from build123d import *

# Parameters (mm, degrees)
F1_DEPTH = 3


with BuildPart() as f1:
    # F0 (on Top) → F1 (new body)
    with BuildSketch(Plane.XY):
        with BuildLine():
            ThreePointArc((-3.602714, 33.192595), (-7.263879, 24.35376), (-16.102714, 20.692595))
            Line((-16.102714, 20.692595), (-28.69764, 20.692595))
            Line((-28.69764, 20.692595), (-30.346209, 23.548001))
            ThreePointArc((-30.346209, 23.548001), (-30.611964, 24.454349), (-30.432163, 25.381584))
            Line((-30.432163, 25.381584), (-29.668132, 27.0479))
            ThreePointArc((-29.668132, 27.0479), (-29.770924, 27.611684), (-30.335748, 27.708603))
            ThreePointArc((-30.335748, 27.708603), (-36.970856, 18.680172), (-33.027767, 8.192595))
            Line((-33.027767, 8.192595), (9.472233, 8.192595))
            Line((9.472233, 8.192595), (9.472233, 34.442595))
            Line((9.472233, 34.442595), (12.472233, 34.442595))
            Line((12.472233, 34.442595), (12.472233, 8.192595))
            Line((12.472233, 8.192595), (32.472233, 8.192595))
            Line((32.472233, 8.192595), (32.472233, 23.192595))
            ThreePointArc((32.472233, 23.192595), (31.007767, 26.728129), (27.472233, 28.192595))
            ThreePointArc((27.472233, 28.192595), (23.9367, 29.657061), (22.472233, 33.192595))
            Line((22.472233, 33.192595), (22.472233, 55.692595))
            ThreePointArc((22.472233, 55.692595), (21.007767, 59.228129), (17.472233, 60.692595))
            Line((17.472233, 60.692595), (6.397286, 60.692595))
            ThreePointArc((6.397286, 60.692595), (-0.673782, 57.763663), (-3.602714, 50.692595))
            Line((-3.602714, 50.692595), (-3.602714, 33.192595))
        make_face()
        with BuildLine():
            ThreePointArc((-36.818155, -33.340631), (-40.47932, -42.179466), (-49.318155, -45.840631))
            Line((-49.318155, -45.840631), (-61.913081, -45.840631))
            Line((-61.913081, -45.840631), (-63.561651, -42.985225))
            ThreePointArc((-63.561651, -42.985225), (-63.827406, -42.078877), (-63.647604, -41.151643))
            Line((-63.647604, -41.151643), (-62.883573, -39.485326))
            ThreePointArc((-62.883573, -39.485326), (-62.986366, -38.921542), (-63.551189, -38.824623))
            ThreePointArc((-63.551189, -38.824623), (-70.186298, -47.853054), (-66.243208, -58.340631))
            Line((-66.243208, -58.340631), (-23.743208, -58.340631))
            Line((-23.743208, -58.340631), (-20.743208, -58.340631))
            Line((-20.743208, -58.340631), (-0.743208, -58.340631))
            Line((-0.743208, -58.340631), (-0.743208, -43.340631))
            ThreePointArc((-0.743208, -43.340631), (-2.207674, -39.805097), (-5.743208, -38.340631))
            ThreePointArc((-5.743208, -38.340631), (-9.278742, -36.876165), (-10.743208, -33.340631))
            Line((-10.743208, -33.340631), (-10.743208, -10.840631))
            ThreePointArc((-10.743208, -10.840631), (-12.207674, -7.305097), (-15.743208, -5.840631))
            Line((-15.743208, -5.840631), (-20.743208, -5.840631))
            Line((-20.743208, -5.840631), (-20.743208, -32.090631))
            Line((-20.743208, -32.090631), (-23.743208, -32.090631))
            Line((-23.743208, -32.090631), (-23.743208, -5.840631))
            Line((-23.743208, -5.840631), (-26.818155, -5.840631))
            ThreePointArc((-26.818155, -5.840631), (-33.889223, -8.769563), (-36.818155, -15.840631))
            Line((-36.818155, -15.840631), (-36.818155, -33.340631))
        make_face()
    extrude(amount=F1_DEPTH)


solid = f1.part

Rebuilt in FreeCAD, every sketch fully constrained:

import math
import FreeCAD as App
import Part
import Sketcher
Q = App.Units.Quantity

doc = App.newDocument("Part")
body = doc.addObject("PartDesign::Body", "Body")
body.AllowCompound = True

# Sketch on XY plane
sketch1 = body.newObject("Sketcher::SketchObject", "Sketch")
sketch1.AttachmentSupport = (doc.getObject("XY_Plane"), [""])
sketch1.MapMode = "FlatFace"
sketch1.addGeometry([
    Part.ArcOfCircle(Part.Circle(App.Vector(-16.102713, 33.192594, 0), App.Vector(0, 0, 1), 12.499999), math.radians(-90.000004), math.radians(0.000004)),  # 0
    Part.LineSegment(App.Vector(-16.102714, 20.692595, 0), App.Vector(-28.69764, 20.692595, 0)),  # 1
    Part.LineSegment(App.Vector(-28.69764, 20.692595, 0), App.Vector(-30.346209, 23.548001, 0)),  # 2
    Part.ArcOfCircle(Part.Circle(App.Vector(-28.614153, 24.548002, 0), App.Vector(0, 0, 1), 2.000005), math.radians(155.367903), math.radians(209.999947)),  # 3
    Part.LineSegment(App.Vector(-30.432163, 25.381584, 0), App.Vector(-29.668132, 27.0479, 0)),  # 4
    Part.ArcOfCircle(Part.Circle(App.Vector(-30.122633, 27.256296, 0), App.Vector(0, 0, 1), 0.5), math.radians(-24.632208), math.radians(115.228574)),  # 5
    Part.ArcOfCircle(Part.Circle(App.Vector(-25.324901, 17.07374, 0), App.Vector(0, 0, 1), 11.756228), math.radians(115.228489), math.radians(229.063986)),  # 6
    Part.LineSegment(App.Vector(-33.027767, 8.192595, 0), App.Vector(9.472233, 8.192595, 0)),  # 7
    Part.LineSegment(App.Vector(9.472233, 8.192595, 0), App.Vector(9.472233, 34.442595, 0)),  # 8
    Part.LineSegment(App.Vector(9.472233, 34.442595, 0), App.Vector(12.472233, 34.442595, 0)),  # 9
    Part.LineSegment(App.Vector(12.472233, 34.442595, 0), App.Vector(12.472233, 8.192595, 0)),  # 10
    Part.LineSegment(App.Vector(12.472233, 8.192595, 0), App.Vector(32.472233, 8.192595, 0)),  # 11
    Part.LineSegment(App.Vector(32.472233, 8.192595, 0), App.Vector(32.472233, 23.192595, 0)),  # 12
    Part.ArcOfCircle(Part.Circle(App.Vector(27.472233, 23.192595, 0), App.Vector(0, 0, 1), 5), math.radians(-0.000004), math.radians(90.000004)),  # 13
    Part.ArcOfCircle(Part.Circle(App.Vector(27.472234, 33.192596, 0), App.Vector(0, 0, 1), 5.000001), math.radians(-179.999984), math.radians(-90.000016)),  # 14
    Part.LineSegment(App.Vector(22.472233, 33.192595, 0), App.Vector(22.472233, 55.692595, 0)),  # 15
    Part.ArcOfCircle(Part.Circle(App.Vector(17.472233, 55.692595, 0), App.Vector(0, 0, 1), 5), math.radians(-0.000004), math.radians(90.000004)),  # 16
    Part.LineSegment(App.Vector(17.472233, 60.692595, 0), App.Vector(6.397286, 60.692595, 0)),  # 17
    Part.ArcOfCircle(Part.Circle(App.Vector(6.397285, 50.692596, 0), App.Vector(0, 0, 1), 9.999999), math.radians(89.999996), math.radians(180.000004)),  # 18
    Part.LineSegment(App.Vector(-3.602714, 50.692595, 0), App.Vector(-3.602714, 33.192595, 0)),  # 19
    Part.ArcOfCircle(Part.Circle(App.Vector(-49.318154, -33.340632, 0), App.Vector(0, 0, 1), 12.499999), math.radians(-90.000004), math.radians(0.000004)),  # 20
    Part.LineSegment(App.Vector(-49.318155, -45.840631, 0), App.Vector(-61.913081, -45.840631, 0)),  # 21
    Part.LineSegment(App.Vector(-61.913081, -45.840631, 0), App.Vector(-63.561651, -42.985225, 0)),  # 22
    Part.ArcOfCircle(Part.Circle(App.Vector(-61.829601, -41.985226, 0), App.Vector(0, 0, 1), 1.999999), math.radians(155.367802), math.radians(209.999988)),  # 23
    Part.LineSegment(App.Vector(-63.647604, -41.151643, 0), App.Vector(-62.883573, -39.485326, 0)),  # 24
    Part.ArcOfCircle(Part.Circle(App.Vector(-63.338075, -39.276931, 0), App.Vector(0, 0, 1), 0.5), math.radians(-24.632093), math.radians(115.228459)),  # 25
    Part.ArcOfCircle(Part.Circle(App.Vector(-58.540344, -49.459485, 0), App.Vector(0, 0, 1), 11.756226), math.radians(115.22848), math.radians(229.063995)),  # 26
    Part.LineSegment(App.Vector(-66.243208, -58.340631, 0), App.Vector(-0.743208, -58.340631, 0)),  # 27
    Part.LineSegment(App.Vector(-0.743208, -58.340631, 0), App.Vector(-0.743208, -43.340631, 0)),  # 28
    Part.ArcOfCircle(Part.Circle(App.Vector(-5.743208, -43.340631, 0), App.Vector(0, 0, 1), 5), math.radians(-0.000004), math.radians(90.000004)),  # 29
    Part.ArcOfCircle(Part.Circle(App.Vector(-5.743208, -33.340631, 0), App.Vector(0, 0, 1), 5), math.radians(179.999996), math.radians(270.000004)),  # 30
    Part.LineSegment(App.Vector(-10.743208, -33.340631, 0), App.Vector(-10.743208, -10.840631, 0)),  # 31
    Part.ArcOfCircle(Part.Circle(App.Vector(-15.743208, -10.840631, 0), App.Vector(0, 0, 1), 5), math.radians(-0.000004), math.radians(90.000004)),  # 32
    Part.LineSegment(App.Vector(-15.743208, -5.840631, 0), App.Vector(-20.743208, -5.840631, 0)),  # 33
    Part.LineSegment(App.Vector(-20.743208, -5.840631, 0), App.Vector(-20.743208, -32.090631, 0)),  # 34
    Part.LineSegment(App.Vector(-20.743208, -32.090631, 0), App.Vector(-23.743208, -32.090631, 0)),  # 35
    Part.LineSegment(App.Vector(-23.743208, -32.090631, 0), App.Vector(-23.743208, -5.840631, 0)),  # 36
    Part.LineSegment(App.Vector(-23.743208, -5.840631, 0), App.Vector(-26.818155, -5.840631, 0)),  # 37
    Part.ArcOfCircle(Part.Circle(App.Vector(-26.818156, -15.84063, 0), App.Vector(0, 0, 1), 9.999999), math.radians(89.999996), math.radians(180.000004)),  # 38
    Part.LineSegment(App.Vector(-36.818155, -15.840631, 0), App.Vector(-36.818155, -33.340631, 0)),  # 39
], False)
sketch1.addConstraint([
    Sketcher.Constraint("Tangent", 0, 1, 1, 1),
    Sketcher.Constraint("Coincident", 1, 2, 2, 1),
    Sketcher.Constraint("Tangent", 2, 2, 3, 2),
    Sketcher.Constraint("Tangent", 3, 1, 4, 1),
    Sketcher.Constraint("Tangent", 4, 2, 5, 1),
    Sketcher.Constraint("Tangent", 5, 2, 6, 1),
    Sketcher.Constraint("Coincident", 6, 2, 7, 1),
    Sketcher.Constraint("Coincident", 7, 2, 8, 1),
    Sketcher.Constraint("Coincident", 8, 2, 9, 1),
    Sketcher.Constraint("Coincident", 9, 2, 10, 1),
    Sketcher.Constraint("Coincident", 10, 2, 11, 1),
    Sketcher.Constraint("Coincident", 11, 2, 12, 1),
    Sketcher.Constraint("Tangent", 12, 2, 13, 1),
    Sketcher.Constraint("Tangent", 13, 2, 14, 2),
    Sketcher.Constraint("Tangent", 14, 1, 15, 1),
    Sketcher.Constraint("Tangent", 15, 2, 16, 1),
    Sketcher.Constraint("Tangent", 16, 2, 17, 1),
    Sketcher.Constraint("Tangent", 17, 2, 18, 1),
    Sketcher.Constraint("Tangent", 18, 2, 19, 1),
    Sketcher.Constraint("Tangent", 19, 2, 0, 2),
    Sketcher.Constraint("Tangent", 20, 1, 21, 1),
    Sketcher.Constraint("Coincident", 21, 2, 22, 1),
    Sketcher.Constraint("Tangent", 22, 2, 23, 2),
    Sketcher.Constraint("Tangent", 23, 1, 24, 1),
    Sketcher.Constraint("Tangent", 24, 2, 25, 1),
    Sketcher.Constraint("Tangent", 25, 2, 26, 1),
    Sketcher.Constraint("Coincident", 26, 2, 27, 1),
    Sketcher.Constraint("Coincident", 27, 2, 28, 1),
    Sketcher.Constraint("Tangent", 28, 2, 29, 1),
    Sketcher.Constraint("Tangent", 29, 2, 30, 2),
    Sketcher.Constraint("Tangent", 30, 1, 31, 1),
    Sketcher.Constraint("Tangent", 31, 2, 32, 1),
    Sketcher.Constraint("Tangent", 32, 2, 33, 1),
    Sketcher.Constraint("Coincident", 33, 2, 34, 1),
    Sketcher.Constraint("Coincident", 34, 2, 35, 1),
    Sketcher.Constraint("Coincident", 35, 2, 36, 1),
    Sketcher.Constraint("Coincident", 36, 2, 37, 1),
    Sketcher.Constraint("Tangent", 37, 2, 38, 1),
    Sketcher.Constraint("Tangent", 38, 2, 39, 1),
    Sketcher.Constraint("Tangent", 39, 2, 20, 2),
    Sketcher.Constraint("Horizontal", 1),
    Sketcher.Constraint("Horizontal", 7),
    Sketcher.Constraint("Vertical", 8),
    Sketcher.Constraint("Horizontal", 9),
    Sketcher.Constraint("Vertical", 10),
    Sketcher.Constraint("Horizontal", 11),
    Sketcher.Constraint("Vertical", 12),
    Sketcher.Constraint("Vertical", 15),
    Sketcher.Constraint("Horizontal", 17),
    Sketcher.Constraint("Vertical", 19),
    Sketcher.Constraint("Horizontal", 21),
    Sketcher.Constraint("Horizontal", 27),
    Sketcher.Constraint("Vertical", 28),
    Sketcher.Constraint("Vertical", 31),
    Sketcher.Constraint("Horizontal", 33),
    Sketcher.Constraint("Vertical", 34),
    Sketcher.Constraint("Horizontal", 35),
    Sketcher.Constraint("Vertical", 36),
    Sketcher.Constraint("Horizontal", 37),
    Sketcher.Constraint("Vertical", 39),
    Sketcher.Constraint("Equal", 13, 14),
    Sketcher.Constraint("Equal", 14, 16),
    Sketcher.Constraint("Equal", 0, 20),
    Sketcher.Constraint("Equal", 5, 25),
    Sketcher.Constraint("Equal", 6, 26),
    Sketcher.Constraint("Equal", 16, 29),
    Sketcher.Constraint("Equal", 29, 30),
    Sketcher.Constraint("Equal", 30, 32),
    Sketcher.Constraint("Equal", 18, 38),
    Sketcher.Constraint("Parallel", 2, 22),
    Sketcher.Constraint("Parallel", 4, 24),
    Sketcher.Constraint("Horizontal", 20, 3, 30, 3),
    Sketcher.Constraint("Horizontal", 7, 2, 10, 2),
    Sketcher.Constraint("Horizontal", 0, 3, 14, 1),
    Sketcher.Constraint("Horizontal", 33, 2, 36, 2),
    Sketcher.Constraint("Vertical", 13, 3, 14, 3),
    Sketcher.Constraint("Vertical", 29, 3, 30, 3),
    Sketcher.Constraint("Equal", 1, 21),
    Sketcher.Constraint("Equal", 9, 35),
    Sketcher.Constraint("Equal", 12, 28),
    Sketcher.Constraint("Equal", 15, 31),
    Sketcher.Constraint("Equal", 10, 34),
    Sketcher.Constraint("Equal", 2, 22),
    Sketcher.Constraint("Equal", 4, 24),
    Sketcher.Constraint("Radius", 13, Q("5 mm")),
    Sketcher.Constraint("Radius", 18, Q("9.999999 mm")),
    Sketcher.Constraint("Radius", 23, Q("1.999999 mm")),
    Sketcher.Constraint("Radius", 0, Q("12.499999 mm")),
    Sketcher.Constraint("Radius", 5, Q("0.5 mm")),
    Sketcher.Constraint("DistanceX", 9, 1, 9, 2, Q("3 mm")),
    Sketcher.Constraint("DistanceX", 11, 1, 11, 2, Q("20 mm")),
    Sketcher.Constraint("DistanceX", 33, 2, 33, 1, Q("5 mm")),
    Sketcher.Constraint("DistanceY", 12, 1, 12, 2, Q("15 mm")),
    Sketcher.Constraint("Angle", 2, Q("119.999994 deg")),
    Sketcher.Constraint("DistanceX", 7, 1, 7, 2, Q("42.5 mm")),
    Sketcher.Constraint("DistanceX", 27, 1, 27, 2, Q("65.5 mm")),
    Sketcher.Constraint("DistanceY", 15, 1, 15, 2, Q("22.5 mm")),
    Sketcher.Constraint("DistanceY", 2, 2, 3, 3, Q("1.000001 mm")),
    Sketcher.Constraint("DistanceY", 8, 1, 8, 2, Q("26.25 mm")),
    Sketcher.Constraint("DistanceY", -1, 1, 3, 3, Q("24.548002 mm")),
    Sketcher.Constraint("Radius", 6, Q("11.756228 mm")),
    Sketcher.Constraint("DistanceX", 20, 3, 3, 3, Q("20.704001 mm")),
    Sketcher.Constraint("DistanceX", 6, 3, -1, 1, Q("25.324901 mm")),
    Sketcher.Constraint("DistanceX", 23, 3, -1, 1, Q("61.829601 mm")),
    Sketcher.Constraint("DistanceY", -1, 1, 4, 2, Q("27.0479 mm")),
    Sketcher.Constraint("DistanceY", 5, 3, 0, 3, Q("5.936298 mm")),
    Sketcher.Constraint("DistanceX", 5, 3, 4, 2, Q("0.454501 mm")),
    Sketcher.Constraint("DistanceX", 1, 2, 1, 1, Q("12.594926 mm")),
    Sketcher.Constraint("DistanceX", 37, 2, 37, 1, Q("3.074947 mm")),
    Sketcher.Constraint("DistanceY", 20, 3, -1, 1, Q("33.340632 mm")),
])
pad1 = body.newObject("PartDesign::Pad", "Pad")
pad1.Profile = sketch1
pad1.Length = 3

doc.recompute()
